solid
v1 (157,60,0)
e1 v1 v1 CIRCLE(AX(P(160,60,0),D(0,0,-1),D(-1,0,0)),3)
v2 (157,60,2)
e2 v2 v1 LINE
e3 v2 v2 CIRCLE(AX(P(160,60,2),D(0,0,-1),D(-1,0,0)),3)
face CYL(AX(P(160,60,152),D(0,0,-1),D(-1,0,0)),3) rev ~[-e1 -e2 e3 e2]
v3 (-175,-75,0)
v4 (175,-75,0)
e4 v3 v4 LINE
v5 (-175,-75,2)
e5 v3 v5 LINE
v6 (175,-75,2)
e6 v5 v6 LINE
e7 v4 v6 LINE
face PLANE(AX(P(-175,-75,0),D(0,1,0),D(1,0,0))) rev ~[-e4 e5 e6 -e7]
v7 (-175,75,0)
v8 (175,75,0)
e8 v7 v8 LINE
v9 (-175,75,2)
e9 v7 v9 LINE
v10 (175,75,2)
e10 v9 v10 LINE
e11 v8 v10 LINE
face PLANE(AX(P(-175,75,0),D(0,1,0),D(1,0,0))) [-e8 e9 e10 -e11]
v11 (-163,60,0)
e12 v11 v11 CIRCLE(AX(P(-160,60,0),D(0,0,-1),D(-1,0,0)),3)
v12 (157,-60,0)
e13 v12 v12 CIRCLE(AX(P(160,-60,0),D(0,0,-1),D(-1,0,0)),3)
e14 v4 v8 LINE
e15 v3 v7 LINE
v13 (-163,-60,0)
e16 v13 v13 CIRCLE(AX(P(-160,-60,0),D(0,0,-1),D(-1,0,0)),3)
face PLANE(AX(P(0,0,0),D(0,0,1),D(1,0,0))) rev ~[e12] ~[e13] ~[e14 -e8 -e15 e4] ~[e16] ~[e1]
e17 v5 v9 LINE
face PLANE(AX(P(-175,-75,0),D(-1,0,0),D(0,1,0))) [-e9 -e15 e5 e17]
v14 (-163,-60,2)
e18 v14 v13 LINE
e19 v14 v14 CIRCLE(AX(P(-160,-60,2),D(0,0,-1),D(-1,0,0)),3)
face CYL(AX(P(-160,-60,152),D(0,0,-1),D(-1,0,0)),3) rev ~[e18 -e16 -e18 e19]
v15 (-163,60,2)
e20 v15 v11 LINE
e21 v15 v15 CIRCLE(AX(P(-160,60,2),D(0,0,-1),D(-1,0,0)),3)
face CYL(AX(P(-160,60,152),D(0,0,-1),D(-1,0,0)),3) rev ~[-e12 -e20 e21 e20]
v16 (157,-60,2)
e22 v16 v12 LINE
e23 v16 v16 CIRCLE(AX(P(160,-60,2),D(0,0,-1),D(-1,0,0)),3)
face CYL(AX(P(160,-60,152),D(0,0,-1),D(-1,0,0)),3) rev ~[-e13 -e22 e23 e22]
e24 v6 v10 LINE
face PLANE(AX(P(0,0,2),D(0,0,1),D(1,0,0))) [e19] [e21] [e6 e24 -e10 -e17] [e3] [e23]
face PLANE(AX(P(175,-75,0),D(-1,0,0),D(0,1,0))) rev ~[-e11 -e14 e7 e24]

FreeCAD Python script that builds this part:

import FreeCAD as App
import Part
import Sketcher

V = App.Vector
Q = App.Units.Quantity


def add_polygon(sketch, points):
    """Adds a closed chain of lines whose ends are joined by coincident constraints."""
    first, n = sketch.GeometryCount, len(points)
    for a, b in zip(points, points[1:] + points[:1]):
        sketch.addGeometry(Part.LineSegment(App.Vector(*a, 0), App.Vector(*b, 0)), False)
    for i in range(n):
        sketch.addConstraint(Sketcher.Constraint("Coincident", first + i, 2, first + (i + 1) % n, 1))

doc = App.newDocument("Part")
body = doc.addObject("PartDesign::Body", "Body")

sketch1 = body.newObject("Sketcher::SketchObject", "Sketch")
sketch1.AttachmentSupport = (doc.getObject("XY_Plane"), [""])
sketch1.MapMode = "FlatFace"
add_polygon(sketch1, [(-175, 75), (-175, -75), (175, -75), (175, 75)])
sketch1.addConstraint(Sketcher.Constraint("Vertical", 0))
sketch1.addConstraint(Sketcher.Constraint("Horizontal", 1))
sketch1.addConstraint(Sketcher.Constraint("Vertical", 2))
sketch1.addConstraint(Sketcher.Constraint("Horizontal", 3))
sketch1.addConstraint(Sketcher.Constraint("Symmetric", 0, 2, 2, 2, -1, 1))
sketch1.addConstraint(Sketcher.Constraint("DistanceX", 1, 1, 1, 2, Q("350 mm")))
sketch1.addConstraint(Sketcher.Constraint("DistanceY", 0, 2, 0, 1, Q("150 mm")))
pad1 = body.newObject("PartDesign::Pad", "Pad")
pad1.Profile = sketch1
pad1.Length = 2

sketch2 = body.newObject("Sketcher::SketchObject", "Sketch001")
sketch2.AttachmentSupport = (doc.getObject("XY_Plane"), [""])
sketch2.MapMode = "FlatFace"
sketch2.AttachmentOffset = App.Placement(V(0, 0, 2), App.Rotation())
sketch2.addGeometry(Part.Circle(V(-160, 60, 0), V(0, 0, 1), 3), False)
sketch2.addGeometry(Part.Circle(V(-160, -60, 0), V(0, 0, 1), 3), False)
sketch2.addGeometry(Part.Circle(V(160, 60, 0), V(0, 0, 1), 3), False)
sketch2.addGeometry(Part.Circle(V(160, -60, 0), V(0, 0, 1), 3), False)
sketch2.addConstraint(Sketcher.Constraint("Equal", 0, 1))
sketch2.addConstraint(Sketcher.Constraint("Equal", 1, 2))
sketch2.addConstraint(Sketcher.Constraint("Equal", 2, 3))
sketch2.addConstraint(Sketcher.Constraint("Symmetric", 1, 3, 2, 3, -1, 1))
sketch2.addConstraint(Sketcher.Constraint("Symmetric", 0, 3, 3, 3, -1, 1))
sketch2.addConstraint(Sketcher.Constraint("Symmetric", 0, 3, 2, 3, -2))
sketch2.addConstraint(Sketcher.Constraint("Diameter", 0, Q("6 mm")))
sketch2.addConstraint(Sketcher.Constraint("DistanceX", 0, 3, -1, 1, Q("160 mm")))
sketch2.addConstraint(Sketcher.Constraint("DistanceY", -1, 1, 0, 3, Q("60 mm")))
doc.recompute()
hole = body.newObject("PartDesign::Hole", "Hole")
hole.Profile = sketch2
hole.ThreadType = "None"
hole.Diameter = 6
hole.DepthType = "Dimension"
hole.Depth = 150
hole.DrillPoint = "Flat"

doc.recompute()
